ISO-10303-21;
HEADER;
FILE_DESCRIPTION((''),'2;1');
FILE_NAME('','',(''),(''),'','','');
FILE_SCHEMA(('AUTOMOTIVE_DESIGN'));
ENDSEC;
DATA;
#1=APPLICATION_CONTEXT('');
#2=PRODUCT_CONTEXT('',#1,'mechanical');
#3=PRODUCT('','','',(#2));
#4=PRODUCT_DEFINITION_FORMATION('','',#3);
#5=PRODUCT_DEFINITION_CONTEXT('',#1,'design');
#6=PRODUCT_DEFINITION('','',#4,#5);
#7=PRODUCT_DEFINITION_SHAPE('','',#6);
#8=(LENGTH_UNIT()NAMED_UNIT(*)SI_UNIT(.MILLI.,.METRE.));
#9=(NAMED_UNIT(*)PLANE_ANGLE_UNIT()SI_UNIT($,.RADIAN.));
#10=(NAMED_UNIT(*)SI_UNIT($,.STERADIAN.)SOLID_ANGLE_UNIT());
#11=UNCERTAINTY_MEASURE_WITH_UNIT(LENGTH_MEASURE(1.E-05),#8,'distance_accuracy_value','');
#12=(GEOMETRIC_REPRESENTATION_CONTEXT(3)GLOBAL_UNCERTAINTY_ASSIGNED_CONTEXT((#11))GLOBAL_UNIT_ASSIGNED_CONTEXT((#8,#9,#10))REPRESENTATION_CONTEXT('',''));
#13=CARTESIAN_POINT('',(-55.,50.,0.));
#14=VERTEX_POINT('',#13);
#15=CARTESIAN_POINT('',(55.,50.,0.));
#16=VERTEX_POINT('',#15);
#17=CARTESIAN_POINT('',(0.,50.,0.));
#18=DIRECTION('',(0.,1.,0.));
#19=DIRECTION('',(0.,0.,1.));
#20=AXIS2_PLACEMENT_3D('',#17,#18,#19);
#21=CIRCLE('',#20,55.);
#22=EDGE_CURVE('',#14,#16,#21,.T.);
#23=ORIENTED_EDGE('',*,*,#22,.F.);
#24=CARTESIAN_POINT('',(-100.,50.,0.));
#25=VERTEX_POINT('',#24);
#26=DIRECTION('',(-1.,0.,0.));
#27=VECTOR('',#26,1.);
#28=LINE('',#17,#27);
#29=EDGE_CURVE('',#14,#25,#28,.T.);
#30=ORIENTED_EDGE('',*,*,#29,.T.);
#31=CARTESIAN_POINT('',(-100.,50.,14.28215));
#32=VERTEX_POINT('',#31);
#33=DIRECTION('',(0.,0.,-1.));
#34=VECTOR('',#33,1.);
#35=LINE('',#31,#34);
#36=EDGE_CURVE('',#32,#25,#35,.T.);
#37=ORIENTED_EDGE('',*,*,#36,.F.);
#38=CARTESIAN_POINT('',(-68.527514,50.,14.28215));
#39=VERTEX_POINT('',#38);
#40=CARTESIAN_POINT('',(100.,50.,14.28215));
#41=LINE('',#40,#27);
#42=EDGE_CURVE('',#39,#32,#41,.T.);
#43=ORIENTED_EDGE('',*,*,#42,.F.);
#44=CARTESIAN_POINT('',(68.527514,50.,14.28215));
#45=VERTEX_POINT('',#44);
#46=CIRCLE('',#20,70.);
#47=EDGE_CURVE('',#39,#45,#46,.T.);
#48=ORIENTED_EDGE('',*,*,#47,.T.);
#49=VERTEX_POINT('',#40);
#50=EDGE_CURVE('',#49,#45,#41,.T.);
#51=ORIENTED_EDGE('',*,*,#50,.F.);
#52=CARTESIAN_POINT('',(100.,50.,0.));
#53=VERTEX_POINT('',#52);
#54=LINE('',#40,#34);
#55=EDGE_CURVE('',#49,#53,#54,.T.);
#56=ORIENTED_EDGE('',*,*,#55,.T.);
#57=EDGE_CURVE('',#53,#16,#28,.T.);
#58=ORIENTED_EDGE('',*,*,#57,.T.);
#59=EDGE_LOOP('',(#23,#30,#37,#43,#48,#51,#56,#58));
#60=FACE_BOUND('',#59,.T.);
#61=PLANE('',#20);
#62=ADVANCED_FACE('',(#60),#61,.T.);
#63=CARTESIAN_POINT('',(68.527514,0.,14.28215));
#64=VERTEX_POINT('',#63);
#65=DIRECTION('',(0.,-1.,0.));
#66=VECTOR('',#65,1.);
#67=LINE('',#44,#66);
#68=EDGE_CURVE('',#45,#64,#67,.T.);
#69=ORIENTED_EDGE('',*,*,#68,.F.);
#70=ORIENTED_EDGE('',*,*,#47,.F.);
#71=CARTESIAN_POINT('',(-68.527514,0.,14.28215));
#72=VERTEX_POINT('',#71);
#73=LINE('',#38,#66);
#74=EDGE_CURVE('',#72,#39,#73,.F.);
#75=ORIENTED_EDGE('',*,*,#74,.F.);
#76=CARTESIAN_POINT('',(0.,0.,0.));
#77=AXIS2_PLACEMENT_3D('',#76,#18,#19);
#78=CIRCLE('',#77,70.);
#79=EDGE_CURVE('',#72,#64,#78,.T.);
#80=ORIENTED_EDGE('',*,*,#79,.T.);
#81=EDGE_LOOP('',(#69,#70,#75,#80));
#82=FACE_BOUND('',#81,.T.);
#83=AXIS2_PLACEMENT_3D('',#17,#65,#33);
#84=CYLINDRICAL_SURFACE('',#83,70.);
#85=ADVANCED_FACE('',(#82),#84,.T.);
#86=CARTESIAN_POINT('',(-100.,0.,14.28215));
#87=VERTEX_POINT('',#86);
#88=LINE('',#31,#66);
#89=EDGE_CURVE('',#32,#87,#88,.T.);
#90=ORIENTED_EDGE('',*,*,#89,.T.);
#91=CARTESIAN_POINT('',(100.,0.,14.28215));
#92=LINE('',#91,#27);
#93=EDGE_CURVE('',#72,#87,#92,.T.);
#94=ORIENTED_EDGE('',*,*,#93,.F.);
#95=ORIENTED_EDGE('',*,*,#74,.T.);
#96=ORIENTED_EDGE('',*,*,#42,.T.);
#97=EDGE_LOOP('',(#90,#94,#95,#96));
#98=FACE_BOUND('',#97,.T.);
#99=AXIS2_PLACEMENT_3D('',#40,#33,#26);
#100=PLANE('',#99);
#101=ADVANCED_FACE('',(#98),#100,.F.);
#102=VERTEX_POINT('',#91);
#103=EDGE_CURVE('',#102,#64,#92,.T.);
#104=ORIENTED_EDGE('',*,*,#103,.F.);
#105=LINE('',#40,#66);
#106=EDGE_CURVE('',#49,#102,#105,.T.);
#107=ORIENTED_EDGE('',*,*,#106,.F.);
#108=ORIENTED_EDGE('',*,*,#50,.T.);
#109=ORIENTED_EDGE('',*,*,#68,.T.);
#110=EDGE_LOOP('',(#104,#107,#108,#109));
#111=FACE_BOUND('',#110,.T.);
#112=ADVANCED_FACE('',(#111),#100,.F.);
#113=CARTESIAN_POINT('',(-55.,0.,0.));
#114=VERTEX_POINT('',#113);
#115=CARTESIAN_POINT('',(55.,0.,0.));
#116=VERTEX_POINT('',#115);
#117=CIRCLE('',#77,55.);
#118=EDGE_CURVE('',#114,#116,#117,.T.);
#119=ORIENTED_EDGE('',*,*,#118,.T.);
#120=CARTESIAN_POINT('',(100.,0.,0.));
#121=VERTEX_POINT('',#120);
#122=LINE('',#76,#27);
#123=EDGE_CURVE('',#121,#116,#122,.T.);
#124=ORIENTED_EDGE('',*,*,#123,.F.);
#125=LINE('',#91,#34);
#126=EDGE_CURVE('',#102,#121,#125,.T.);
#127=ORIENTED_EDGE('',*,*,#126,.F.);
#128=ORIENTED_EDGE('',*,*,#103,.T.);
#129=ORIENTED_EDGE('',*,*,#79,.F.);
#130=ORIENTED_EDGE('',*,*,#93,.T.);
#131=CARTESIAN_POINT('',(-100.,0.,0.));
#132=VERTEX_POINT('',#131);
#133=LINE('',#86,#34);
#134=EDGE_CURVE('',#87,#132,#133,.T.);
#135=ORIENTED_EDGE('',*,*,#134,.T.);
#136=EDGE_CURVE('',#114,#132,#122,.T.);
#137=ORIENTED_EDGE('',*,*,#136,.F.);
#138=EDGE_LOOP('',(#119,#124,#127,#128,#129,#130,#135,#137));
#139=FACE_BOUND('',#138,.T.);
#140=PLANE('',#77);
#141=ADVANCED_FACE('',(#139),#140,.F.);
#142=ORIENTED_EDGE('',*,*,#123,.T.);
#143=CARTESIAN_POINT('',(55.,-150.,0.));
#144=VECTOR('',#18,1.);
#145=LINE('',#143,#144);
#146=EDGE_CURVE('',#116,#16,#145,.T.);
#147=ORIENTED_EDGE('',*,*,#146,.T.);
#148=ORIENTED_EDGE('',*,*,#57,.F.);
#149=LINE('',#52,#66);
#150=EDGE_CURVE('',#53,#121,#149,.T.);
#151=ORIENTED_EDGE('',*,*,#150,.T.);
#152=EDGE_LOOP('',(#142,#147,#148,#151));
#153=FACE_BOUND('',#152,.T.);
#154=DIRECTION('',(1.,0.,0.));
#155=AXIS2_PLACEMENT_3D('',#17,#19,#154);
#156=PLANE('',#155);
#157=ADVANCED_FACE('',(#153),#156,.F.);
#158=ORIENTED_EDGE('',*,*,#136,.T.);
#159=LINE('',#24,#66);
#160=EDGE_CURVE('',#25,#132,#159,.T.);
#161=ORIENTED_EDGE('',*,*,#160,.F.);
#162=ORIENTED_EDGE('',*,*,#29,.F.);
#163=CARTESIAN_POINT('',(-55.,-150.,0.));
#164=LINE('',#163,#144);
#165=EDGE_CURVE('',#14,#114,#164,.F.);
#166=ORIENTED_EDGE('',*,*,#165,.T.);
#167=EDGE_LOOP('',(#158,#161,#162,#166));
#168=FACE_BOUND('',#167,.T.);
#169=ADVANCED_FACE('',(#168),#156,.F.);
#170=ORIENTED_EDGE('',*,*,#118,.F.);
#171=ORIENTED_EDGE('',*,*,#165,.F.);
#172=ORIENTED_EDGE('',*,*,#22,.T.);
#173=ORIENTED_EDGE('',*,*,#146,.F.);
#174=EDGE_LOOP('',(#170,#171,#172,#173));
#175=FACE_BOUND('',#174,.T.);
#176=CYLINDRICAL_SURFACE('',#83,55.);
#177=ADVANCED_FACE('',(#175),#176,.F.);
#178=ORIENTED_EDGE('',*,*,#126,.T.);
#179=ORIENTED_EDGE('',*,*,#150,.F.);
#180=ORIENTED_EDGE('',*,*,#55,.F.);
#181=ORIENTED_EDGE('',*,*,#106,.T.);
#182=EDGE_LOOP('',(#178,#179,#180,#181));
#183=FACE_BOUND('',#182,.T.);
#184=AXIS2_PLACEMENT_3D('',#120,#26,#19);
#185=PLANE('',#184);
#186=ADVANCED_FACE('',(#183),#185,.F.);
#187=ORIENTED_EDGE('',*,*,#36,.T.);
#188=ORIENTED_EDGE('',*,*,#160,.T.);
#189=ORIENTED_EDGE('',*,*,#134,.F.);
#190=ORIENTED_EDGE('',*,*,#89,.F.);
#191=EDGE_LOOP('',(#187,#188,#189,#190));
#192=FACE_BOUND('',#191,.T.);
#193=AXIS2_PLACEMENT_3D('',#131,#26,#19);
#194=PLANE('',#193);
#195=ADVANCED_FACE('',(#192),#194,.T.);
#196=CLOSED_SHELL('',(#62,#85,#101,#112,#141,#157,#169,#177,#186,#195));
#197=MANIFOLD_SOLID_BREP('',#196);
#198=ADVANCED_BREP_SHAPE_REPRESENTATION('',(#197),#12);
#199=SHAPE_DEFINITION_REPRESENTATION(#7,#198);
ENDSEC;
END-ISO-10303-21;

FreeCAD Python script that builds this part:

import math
import FreeCAD as App
import Part
import Sketcher

V = App.Vector
Q = App.Units.Quantity


def add_polygon(sketch, points):
    """Adds a closed chain of lines whose ends are joined by coincident constraints."""
    first, n = sketch.GeometryCount, len(points)
    for a, b in zip(points, points[1:] + points[:1]):
        sketch.addGeometry(Part.LineSegment(App.Vector(*a, 0), App.Vector(*b, 0)), False)
    for i in range(n):
        sketch.addConstraint(Sketcher.Constraint("Coincident", first + i, 2, first + (i + 1) % n, 1))

doc = App.newDocument("Part")
params = doc.addObject("Spreadsheet::Sheet", "Params")
for row, (alias, value) in enumerate([
    ("sketch1_radius", "70 mm"),
    ("sketch1_radius2", "55 mm"),
    ("pad1_length", "50 mm"),
    ("sketch2_width", "50 mm"),
    ("pad2_length", "200 mm"),
    ("sketch3_diameter", "110 mm"),
    ("pocket1_length", "200 mm"),
], start=1):
    params.set(f"A{row}", alias)
    params.set(f"B{row}", "=" + value)
    params.setAlias(f"B{row}", alias)

body = doc.addObject("PartDesign::Body", "Body")

# Sketch on XZ plane
sketch1 = body.newObject("Sketcher::SketchObject", "Sketch")
sketch1.AttachmentSupport = (doc.getObject("XZ_Plane"), [""])
sketch1.MapMode = "FlatFace"
sketch1.addGeometry(Part.ArcOfCircle(Part.Circle(V(0, 0, 0), V(0, 0, 1), 70), math.radians(0), math.radians(180)), False)
sketch1.addGeometry(Part.LineSegment(V(70, 0, 0), V(55, 0, 0)), False)
sketch1.addGeometry(Part.ArcOfCircle(Part.Circle(V(0, 0, 0), V(0, 0, 1), 55), math.radians(0), math.radians(180)), False)
sketch1.addGeometry(Part.LineSegment(V(-55, 0, 0), V(-70, 0, 0)), False)
sketch1.addConstraint(Sketcher.Constraint("Coincident", 0, 1, 1, 1))
sketch1.addConstraint(Sketcher.Constraint("Coincident", 1, 2, 2, 1))
sketch1.addConstraint(Sketcher.Constraint("Coincident", 2, 2, 3, 1))
sketch1.addConstraint(Sketcher.Constraint("Coincident", 3, 2, 0, 2))
sketch1.addConstraint(Sketcher.Constraint("Horizontal", 1))
sketch1.addConstraint(Sketcher.Constraint("Horizontal", 3))
sketch1.addConstraint(Sketcher.Constraint("Coincident", 0, 3, -1, 1))
sketch1.addConstraint(Sketcher.Constraint("Coincident", 2, 3, -1, 1))
sketch1.addConstraint(Sketcher.Constraint("PointOnObject", 0, 1, -1))
sketch1.addConstraint(Sketcher.Constraint("PointOnObject", 2, 2, -1))
sketch1.addConstraint(Sketcher.Constraint("Radius", 0, Q("70 mm")))
sketch1.addConstraint(Sketcher.Constraint("Radius", 2, Q("55 mm")))
sketch1.setExpression("Constraints[10]", "Params.sketch1_radius")
sketch1.setExpression("Constraints[11]", "Params.sketch1_radius2")
pad1 = body.newObject("PartDesign::Pad", "Pad")
pad1.Profile = sketch1
pad1.setExpression("Length", "Params.pad1_length")
pad1.Reversed = True

# Sketch on YZ plane
sketch2 = body.newObject("Sketcher::SketchObject", "Sketch001")
sketch2.AttachmentSupport = (doc.getObject("YZ_Plane"), [""])
sketch2.MapMode = "FlatFace"
add_polygon(sketch2, [(50, 14), (0, 14), (0, 0), (50, 0)])  # lines 0-3
sketch2.addConstraint(Sketcher.Constraint("Horizontal", 0))
sketch2.addConstraint(Sketcher.Constraint("Vertical", 1))
sketch2.addConstraint(Sketcher.Constraint("Horizontal", 2))
sketch2.addConstraint(Sketcher.Constraint("Vertical", 3))
sketch2.addConstraint(Sketcher.Constraint("Coincident", 1, 2, -1, 1))
sketch2.addConstraint(Sketcher.Constraint("DistanceX", 0, 2, 0, 1, Q("50 mm")))
sketch2.addConstraint(Sketcher.Constraint("DistanceY", 1, 2, 1, 1, Q("14.28215 mm")))
sketch2.setExpression("Constraints[9]", "Params.sketch2_width")
pad2 = body.newObject("PartDesign::Pad", "Pad001")
pad2.Profile = sketch2
pad2.setExpression("Length", "Params.pad2_length")
pad2.Midplane = True

# Sketch on XZ plane
sketch3 = body.newObject("Sketcher::SketchObject", "Sketch002")
sketch3.AttachmentSupport = (doc.getObject("XZ_Plane"), [""])
sketch3.MapMode = "FlatFace"
sketch3.AttachmentOffset = App.Placement(V(0, 0, 150), App.Rotation())
sketch3.addGeometry(Part.Circle(V(0, 0, 0), V(0, 0, 1), 55), False)
sketch3.addConstraint(Sketcher.Constraint("Coincident", 0, 3, -1, 1))
sketch3.addConstraint(Sketcher.Constraint("Diameter", 0, Q("110 mm")))
sketch3.setExpression("Constraints[1]", "Params.sketch3_diameter")
pocket1 = body.newObject("PartDesign::Pocket", "Pocket")
pocket1.Profile = sketch3
pocket1.setExpression("Length", "Params.pocket1_length")

doc.recompute()
